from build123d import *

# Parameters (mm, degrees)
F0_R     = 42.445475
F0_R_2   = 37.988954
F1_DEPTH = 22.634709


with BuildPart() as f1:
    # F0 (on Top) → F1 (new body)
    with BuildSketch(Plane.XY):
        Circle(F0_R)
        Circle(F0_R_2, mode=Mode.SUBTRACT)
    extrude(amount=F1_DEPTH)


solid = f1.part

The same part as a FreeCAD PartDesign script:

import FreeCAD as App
import Part
import Sketcher
Q = App.Units.Quantity

doc = App.newDocument("Part")
body = doc.addObject("PartDesign::Body", "Body")

# Sketch on XY plane
sketch1 = doc.addObject("Sketcher::SketchObject", "Sketch")
body.addObject(sketch1)
sketch1.AttachmentSupport = (doc.XY_Plane, [""])
sketch1.MapMode = "FlatFace"
sketch1.addGeometry([
    Part.Circle(App.Vector(0, 0, 0), App.Vector(0, 0, 1), 42),
    Part.Circle(App.Vector(0, 0, 0), App.Vector(0, 0, 1), 38),
], False)
sketch1.addConstraint([
    Sketcher.Constraint("Coincident", 0, 3, -1, 1),
    Sketcher.Constraint("Coincident", 1, 3, -1, 1),
    Sketcher.Constraint("Diameter", 0, Q("84.89095 mm")),
    Sketcher.Constraint("Diameter", 1, Q("75.977908 mm")),
])
pad1 = doc.addObject("PartDesign::Pad", "Pad")
body.addObject(pad1)
pad1.Profile = sketch1
pad1.Length = 22.634709

doc.recompute()
